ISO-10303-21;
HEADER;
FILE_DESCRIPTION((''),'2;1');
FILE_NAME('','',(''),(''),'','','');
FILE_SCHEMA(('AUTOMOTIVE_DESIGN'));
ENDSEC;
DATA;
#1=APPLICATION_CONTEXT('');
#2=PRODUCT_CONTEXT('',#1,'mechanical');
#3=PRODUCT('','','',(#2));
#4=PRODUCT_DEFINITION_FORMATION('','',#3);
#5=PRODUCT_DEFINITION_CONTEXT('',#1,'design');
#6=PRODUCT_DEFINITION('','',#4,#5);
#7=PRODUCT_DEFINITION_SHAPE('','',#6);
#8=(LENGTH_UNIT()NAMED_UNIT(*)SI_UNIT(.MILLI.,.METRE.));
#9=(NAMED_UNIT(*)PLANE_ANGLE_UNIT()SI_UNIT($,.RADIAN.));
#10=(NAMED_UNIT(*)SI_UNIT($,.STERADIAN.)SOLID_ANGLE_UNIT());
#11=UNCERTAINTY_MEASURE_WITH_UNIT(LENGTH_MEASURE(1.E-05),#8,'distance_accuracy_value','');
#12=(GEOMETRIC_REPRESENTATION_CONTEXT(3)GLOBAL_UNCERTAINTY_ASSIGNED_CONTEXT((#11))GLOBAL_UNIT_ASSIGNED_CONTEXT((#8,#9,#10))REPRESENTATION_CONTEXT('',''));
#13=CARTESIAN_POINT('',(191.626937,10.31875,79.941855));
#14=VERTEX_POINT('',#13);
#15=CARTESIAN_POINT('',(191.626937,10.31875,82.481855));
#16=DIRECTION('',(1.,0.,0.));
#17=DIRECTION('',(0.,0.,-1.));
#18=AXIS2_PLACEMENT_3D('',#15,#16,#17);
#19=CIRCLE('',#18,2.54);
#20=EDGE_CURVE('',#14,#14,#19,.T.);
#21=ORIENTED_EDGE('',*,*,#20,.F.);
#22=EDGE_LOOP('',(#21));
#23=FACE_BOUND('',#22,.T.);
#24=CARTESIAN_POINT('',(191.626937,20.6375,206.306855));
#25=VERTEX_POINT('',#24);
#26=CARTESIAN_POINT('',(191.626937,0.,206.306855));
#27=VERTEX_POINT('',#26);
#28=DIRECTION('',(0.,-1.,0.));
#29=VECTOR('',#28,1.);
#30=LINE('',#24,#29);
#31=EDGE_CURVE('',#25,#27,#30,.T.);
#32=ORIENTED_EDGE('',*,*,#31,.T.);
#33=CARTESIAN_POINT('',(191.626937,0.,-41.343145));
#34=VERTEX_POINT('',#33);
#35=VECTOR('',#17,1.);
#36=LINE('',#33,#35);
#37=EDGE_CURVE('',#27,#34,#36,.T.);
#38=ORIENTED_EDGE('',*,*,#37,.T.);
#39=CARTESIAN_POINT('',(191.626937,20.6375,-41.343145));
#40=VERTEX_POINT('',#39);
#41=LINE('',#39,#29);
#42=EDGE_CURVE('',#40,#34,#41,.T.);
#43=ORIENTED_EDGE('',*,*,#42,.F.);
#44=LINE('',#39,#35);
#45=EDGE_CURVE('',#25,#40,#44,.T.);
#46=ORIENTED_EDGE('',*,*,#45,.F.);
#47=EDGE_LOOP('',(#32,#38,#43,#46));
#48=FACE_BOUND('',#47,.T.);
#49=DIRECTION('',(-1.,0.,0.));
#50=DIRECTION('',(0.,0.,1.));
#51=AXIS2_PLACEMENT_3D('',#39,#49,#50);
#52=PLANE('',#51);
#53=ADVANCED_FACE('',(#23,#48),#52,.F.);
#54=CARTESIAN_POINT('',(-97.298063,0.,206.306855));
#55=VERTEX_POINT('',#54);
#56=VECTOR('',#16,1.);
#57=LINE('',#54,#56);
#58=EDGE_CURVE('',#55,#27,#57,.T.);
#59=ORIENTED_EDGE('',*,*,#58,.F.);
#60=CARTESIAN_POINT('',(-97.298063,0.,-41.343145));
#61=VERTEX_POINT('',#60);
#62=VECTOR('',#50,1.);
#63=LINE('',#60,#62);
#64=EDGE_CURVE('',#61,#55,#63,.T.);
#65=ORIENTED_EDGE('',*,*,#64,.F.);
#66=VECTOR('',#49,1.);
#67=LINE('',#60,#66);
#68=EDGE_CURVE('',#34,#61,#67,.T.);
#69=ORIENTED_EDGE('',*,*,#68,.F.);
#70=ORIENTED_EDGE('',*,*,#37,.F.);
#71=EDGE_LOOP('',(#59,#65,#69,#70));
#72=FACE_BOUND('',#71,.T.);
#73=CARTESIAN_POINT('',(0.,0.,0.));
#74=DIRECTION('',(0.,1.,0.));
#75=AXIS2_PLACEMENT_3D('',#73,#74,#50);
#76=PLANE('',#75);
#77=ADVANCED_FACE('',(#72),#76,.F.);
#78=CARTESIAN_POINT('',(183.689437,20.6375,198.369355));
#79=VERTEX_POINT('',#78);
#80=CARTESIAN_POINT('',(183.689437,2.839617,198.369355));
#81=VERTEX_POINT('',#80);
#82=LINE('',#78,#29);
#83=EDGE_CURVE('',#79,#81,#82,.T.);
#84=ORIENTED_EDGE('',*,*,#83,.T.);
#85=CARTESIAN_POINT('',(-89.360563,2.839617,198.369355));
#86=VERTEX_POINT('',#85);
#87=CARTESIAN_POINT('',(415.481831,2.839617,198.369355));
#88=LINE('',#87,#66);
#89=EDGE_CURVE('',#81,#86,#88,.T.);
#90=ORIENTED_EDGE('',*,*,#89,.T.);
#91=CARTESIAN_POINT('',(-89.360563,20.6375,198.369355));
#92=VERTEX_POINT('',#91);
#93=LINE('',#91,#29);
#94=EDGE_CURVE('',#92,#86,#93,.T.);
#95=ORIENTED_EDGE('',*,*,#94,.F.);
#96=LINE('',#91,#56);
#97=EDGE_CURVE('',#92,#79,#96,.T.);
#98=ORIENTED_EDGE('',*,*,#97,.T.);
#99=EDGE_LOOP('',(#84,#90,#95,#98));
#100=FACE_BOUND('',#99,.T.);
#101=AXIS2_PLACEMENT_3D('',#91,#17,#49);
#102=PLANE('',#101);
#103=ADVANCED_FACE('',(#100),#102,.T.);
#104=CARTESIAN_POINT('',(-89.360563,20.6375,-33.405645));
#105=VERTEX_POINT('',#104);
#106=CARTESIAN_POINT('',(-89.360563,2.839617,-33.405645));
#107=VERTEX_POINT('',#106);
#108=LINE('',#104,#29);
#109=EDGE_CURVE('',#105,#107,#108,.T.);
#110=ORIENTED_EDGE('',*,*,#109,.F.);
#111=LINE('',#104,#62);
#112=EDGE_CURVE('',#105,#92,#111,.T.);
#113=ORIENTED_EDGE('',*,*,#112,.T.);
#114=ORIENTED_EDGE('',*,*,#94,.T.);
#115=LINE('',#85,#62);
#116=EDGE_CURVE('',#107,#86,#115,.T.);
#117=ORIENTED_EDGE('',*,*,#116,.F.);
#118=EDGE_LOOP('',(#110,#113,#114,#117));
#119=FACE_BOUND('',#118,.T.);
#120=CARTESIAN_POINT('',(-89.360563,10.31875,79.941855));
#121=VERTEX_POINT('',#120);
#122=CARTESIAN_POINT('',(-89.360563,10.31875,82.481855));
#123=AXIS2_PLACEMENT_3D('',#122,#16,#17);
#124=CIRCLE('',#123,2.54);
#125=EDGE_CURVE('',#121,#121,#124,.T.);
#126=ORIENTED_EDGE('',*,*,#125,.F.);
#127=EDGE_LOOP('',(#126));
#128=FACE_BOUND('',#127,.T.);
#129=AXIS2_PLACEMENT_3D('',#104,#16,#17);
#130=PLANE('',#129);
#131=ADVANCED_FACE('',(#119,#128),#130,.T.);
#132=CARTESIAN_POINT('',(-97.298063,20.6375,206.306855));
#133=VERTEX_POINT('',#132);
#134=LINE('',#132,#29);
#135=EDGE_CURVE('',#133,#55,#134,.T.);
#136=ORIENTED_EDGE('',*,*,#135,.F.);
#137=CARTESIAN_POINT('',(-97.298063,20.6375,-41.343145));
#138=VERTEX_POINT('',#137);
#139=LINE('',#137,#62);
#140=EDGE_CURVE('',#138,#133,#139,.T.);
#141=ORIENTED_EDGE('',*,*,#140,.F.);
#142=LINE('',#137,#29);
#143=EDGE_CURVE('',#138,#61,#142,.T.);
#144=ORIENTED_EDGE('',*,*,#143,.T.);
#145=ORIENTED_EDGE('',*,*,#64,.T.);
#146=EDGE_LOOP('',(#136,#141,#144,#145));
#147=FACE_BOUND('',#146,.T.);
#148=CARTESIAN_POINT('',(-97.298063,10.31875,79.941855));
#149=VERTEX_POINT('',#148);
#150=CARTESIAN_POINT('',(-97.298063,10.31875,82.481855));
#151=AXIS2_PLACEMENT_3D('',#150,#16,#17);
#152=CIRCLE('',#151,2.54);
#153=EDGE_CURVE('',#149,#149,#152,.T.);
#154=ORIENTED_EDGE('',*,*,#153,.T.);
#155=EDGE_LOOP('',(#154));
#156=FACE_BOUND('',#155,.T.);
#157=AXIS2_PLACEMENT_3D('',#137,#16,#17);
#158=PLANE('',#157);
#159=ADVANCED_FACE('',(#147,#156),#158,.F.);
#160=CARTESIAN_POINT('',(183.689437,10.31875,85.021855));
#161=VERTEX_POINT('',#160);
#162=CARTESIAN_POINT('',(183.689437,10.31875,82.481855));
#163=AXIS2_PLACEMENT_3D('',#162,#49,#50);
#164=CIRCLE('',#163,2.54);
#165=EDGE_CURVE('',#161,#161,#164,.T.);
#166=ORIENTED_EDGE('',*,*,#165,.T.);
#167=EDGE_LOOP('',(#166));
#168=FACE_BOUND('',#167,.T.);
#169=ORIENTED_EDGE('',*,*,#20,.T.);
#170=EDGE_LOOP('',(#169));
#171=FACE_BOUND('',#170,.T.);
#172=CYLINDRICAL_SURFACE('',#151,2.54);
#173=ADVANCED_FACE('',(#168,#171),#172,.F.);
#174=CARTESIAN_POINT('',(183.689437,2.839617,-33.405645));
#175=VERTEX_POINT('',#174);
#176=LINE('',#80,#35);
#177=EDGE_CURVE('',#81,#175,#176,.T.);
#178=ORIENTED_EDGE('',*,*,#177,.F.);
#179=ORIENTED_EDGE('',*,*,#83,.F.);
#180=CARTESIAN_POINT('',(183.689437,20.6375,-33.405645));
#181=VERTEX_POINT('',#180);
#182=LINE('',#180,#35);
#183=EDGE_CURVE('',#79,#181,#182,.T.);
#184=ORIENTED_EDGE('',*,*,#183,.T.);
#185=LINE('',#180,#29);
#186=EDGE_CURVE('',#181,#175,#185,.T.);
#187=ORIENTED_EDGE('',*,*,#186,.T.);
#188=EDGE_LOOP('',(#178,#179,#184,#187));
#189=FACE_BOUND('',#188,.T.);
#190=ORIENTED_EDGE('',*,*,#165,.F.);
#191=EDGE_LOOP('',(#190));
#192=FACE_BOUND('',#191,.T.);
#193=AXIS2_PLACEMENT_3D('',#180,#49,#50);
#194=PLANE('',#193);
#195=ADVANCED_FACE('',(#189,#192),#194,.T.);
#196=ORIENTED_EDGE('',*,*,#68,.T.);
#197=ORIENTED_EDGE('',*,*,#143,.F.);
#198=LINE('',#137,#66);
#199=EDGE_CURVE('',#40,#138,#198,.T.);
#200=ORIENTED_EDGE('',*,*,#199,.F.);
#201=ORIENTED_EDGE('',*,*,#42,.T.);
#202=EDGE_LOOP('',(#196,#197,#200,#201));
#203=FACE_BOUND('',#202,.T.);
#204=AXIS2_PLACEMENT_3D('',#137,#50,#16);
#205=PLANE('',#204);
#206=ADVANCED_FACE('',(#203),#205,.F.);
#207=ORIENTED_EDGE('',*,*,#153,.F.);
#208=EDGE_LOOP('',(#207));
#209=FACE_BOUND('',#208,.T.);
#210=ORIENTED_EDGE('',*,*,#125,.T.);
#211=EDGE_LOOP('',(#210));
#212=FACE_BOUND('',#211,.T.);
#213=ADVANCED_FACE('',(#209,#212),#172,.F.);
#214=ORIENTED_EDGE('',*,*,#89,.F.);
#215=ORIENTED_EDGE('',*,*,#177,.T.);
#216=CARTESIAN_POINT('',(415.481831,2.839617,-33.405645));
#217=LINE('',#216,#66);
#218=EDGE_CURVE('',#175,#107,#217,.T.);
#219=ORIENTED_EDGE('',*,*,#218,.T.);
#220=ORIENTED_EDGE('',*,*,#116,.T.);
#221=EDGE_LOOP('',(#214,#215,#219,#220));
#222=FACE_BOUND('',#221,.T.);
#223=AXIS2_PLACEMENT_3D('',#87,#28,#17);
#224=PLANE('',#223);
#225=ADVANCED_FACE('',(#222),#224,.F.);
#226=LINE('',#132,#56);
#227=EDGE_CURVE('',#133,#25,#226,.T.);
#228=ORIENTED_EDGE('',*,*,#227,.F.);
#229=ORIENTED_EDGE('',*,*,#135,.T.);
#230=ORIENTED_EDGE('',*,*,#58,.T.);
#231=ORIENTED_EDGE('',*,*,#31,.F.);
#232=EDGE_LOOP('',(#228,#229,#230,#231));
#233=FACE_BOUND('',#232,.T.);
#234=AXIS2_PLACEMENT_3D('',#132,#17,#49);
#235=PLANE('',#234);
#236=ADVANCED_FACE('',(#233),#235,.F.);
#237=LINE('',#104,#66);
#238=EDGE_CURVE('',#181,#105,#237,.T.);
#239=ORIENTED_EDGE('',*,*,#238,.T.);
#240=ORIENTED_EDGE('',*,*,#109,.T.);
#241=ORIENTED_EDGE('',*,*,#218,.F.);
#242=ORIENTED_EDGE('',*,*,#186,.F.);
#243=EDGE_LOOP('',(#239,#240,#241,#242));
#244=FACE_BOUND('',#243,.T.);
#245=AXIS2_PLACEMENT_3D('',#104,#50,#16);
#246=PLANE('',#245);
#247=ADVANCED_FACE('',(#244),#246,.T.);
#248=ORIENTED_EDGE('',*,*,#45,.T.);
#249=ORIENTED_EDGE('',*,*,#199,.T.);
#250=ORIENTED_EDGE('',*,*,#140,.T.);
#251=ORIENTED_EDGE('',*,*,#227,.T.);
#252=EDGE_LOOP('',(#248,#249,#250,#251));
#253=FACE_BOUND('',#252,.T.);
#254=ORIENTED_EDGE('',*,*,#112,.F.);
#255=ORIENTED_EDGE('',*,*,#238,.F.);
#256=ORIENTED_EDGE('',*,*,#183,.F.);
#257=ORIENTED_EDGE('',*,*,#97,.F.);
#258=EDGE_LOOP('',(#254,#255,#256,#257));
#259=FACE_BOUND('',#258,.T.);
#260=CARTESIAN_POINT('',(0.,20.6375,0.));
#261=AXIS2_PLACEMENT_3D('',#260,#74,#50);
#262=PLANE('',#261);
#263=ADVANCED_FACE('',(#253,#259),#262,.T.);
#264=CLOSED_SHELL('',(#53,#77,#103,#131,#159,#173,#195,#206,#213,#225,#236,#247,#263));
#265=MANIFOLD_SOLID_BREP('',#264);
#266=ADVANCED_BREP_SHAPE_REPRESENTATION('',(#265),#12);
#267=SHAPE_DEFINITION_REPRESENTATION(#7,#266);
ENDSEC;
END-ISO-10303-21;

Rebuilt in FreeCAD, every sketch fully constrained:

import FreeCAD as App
import Part
import Sketcher
Q = App.Units.Quantity


def add_polygon(sketch, points):
    """Adds a closed chain of lines whose ends are joined by coincident constraints."""
    first, n = sketch.GeometryCount, len(points)
    for a, b in zip(points, points[1:] + points[:1]):
        sketch.addGeometry(Part.LineSegment(App.Vector(*a, 0), App.Vector(*b, 0)), False)
    for i in range(n):
        sketch.addConstraint(Sketcher.Constraint("Coincident", first + i, 2, first + (i + 1) % n, 1))

doc = App.newDocument("Part")
body = doc.addObject("PartDesign::Body", "Body")

# Sketch on XZ plane
sketch1 = body.newObject("Sketcher::SketchObject", "Sketch")
sketch1.AttachmentSupport = (doc.getObject("XZ_Plane"), [""])
sketch1.MapMode = "FlatFace"
add_polygon(sketch1, [(-97, -41), (-97, 206), (192, 206), (192, -41)])  # lines 0-3
add_polygon(sketch1, [(184, 198), (-89, 198), (-89, -33), (184, -33)])  # lines 4-7
sketch1.addConstraint(Sketcher.Constraint("Vertical", 0))
sketch1.addConstraint(Sketcher.Constraint("Horizontal", 1))
sketch1.addConstraint(Sketcher.Constraint("Vertical", 2))
sketch1.addConstraint(Sketcher.Constraint("Horizontal", 3))
sketch1.addConstraint(Sketcher.Constraint("Horizontal", 4))
sketch1.addConstraint(Sketcher.Constraint("Vertical", 5))
sketch1.addConstraint(Sketcher.Constraint("Horizontal", 6))
sketch1.addConstraint(Sketcher.Constraint("Vertical", 7))
sketch1.addConstraint(Sketcher.Constraint("DistanceX", 4, 2, 4, 1, Q("10.75 in")))
sketch1.addConstraint(Sketcher.Constraint("DistanceY", 0, 1, 0, 2, Q("9.75 in")))
sketch1.addConstraint(Sketcher.Constraint("DistanceX", 1, 1, 1, 2, Q("11.375 in")))
sketch1.addConstraint(Sketcher.Constraint("DistanceY", 5, 2, 5, 1, Q("9.125 in")))
sketch1.addConstraint(Sketcher.Constraint("DistanceX", 0, 2, 4, 2, Q("0.3125 in")))
sketch1.addConstraint(Sketcher.Constraint("DistanceY", 4, 2, 0, 2, Q("0.3125 in")))
sketch1.addConstraint(Sketcher.Constraint("DistanceX", 0, 2, -1, 1, Q("97.298063 mm")))
sketch1.addConstraint(Sketcher.Constraint("DistanceY", -1, 1, 0, 2, Q("206.306855 mm")))
pad1 = body.newObject("PartDesign::Pad", "Pad")
pad1.Profile = sketch1
pad1.Length = Q("0.8125 in")
pad1.Reversed = True

# Sketch on YZ plane
sketch2 = body.newObject("Sketcher::SketchObject", "Sketch001")
sketch2.AttachmentSupport = (doc.getObject("YZ_Plane"), [""])
sketch2.MapMode = "FlatFace"
sketch2.AttachmentOffset = App.Placement(App.Vector(0, 0, -89.360563), App.Rotation())
add_polygon(sketch2, [(2.8, 198.4), (0, 198.4), (0, -33.4), (2.8, -33.4)])  # lines 0-3
sketch2.addConstraint(Sketcher.Constraint("Horizontal", 0))
sketch2.addConstraint(Sketcher.Constraint("Vertical", 1))
sketch2.addConstraint(Sketcher.Constraint("Horizontal", 2))
sketch2.addConstraint(Sketcher.Constraint("Vertical", 3))
sketch2.addConstraint(Sketcher.Constraint("PointOnObject", 0, 2, -2))
sketch2.addConstraint(Sketcher.Constraint("DistanceY", 1, 2, 1, 1, Q("9.125 in")))
sketch2.addConstraint(Sketcher.Constraint("DistanceX", 0, 2, 0, 1, Q("2.839617 mm")))
sketch2.addConstraint(Sketcher.Constraint("DistanceY", -1, 1, 0, 2, Q("198.369355 mm")))
pad2 = body.newObject("PartDesign::Pad", "Pad001")
pad2.Profile = sketch2
pad2.Length = Q("10.75 in")

# Sketch on YZ plane
sketch3 = body.newObject("Sketcher::SketchObject", "Sketch002")
sketch3.AttachmentSupport = (doc.getObject("YZ_Plane"), [""])
sketch3.MapMode = "FlatFace"
sketch3.AttachmentOffset = App.Placement(App.Vector(0, 0, 191.626937), App.Rotation())
sketch3.addGeometry(Part.Circle(App.Vector(10.3, 82.5, 0), App.Vector(0, 0, 1), 2.5), False)
sketch3.addConstraint(Sketcher.Constraint("Diameter", 0, Q("0.2 in")))
sketch3.addConstraint(Sketcher.Constraint("DistanceX", -1, 1, 0, 3, Q("0.40625 in")))
sketch3.addConstraint(Sketcher.Constraint("DistanceY", -1, 1, 0, 3, Q("82.481855 mm")))
pocket1 = body.newObject("PartDesign::Pocket", "Pocket")
pocket1.Profile = sketch3
pocket1.Type = "ThroughAll"

doc.recompute()
